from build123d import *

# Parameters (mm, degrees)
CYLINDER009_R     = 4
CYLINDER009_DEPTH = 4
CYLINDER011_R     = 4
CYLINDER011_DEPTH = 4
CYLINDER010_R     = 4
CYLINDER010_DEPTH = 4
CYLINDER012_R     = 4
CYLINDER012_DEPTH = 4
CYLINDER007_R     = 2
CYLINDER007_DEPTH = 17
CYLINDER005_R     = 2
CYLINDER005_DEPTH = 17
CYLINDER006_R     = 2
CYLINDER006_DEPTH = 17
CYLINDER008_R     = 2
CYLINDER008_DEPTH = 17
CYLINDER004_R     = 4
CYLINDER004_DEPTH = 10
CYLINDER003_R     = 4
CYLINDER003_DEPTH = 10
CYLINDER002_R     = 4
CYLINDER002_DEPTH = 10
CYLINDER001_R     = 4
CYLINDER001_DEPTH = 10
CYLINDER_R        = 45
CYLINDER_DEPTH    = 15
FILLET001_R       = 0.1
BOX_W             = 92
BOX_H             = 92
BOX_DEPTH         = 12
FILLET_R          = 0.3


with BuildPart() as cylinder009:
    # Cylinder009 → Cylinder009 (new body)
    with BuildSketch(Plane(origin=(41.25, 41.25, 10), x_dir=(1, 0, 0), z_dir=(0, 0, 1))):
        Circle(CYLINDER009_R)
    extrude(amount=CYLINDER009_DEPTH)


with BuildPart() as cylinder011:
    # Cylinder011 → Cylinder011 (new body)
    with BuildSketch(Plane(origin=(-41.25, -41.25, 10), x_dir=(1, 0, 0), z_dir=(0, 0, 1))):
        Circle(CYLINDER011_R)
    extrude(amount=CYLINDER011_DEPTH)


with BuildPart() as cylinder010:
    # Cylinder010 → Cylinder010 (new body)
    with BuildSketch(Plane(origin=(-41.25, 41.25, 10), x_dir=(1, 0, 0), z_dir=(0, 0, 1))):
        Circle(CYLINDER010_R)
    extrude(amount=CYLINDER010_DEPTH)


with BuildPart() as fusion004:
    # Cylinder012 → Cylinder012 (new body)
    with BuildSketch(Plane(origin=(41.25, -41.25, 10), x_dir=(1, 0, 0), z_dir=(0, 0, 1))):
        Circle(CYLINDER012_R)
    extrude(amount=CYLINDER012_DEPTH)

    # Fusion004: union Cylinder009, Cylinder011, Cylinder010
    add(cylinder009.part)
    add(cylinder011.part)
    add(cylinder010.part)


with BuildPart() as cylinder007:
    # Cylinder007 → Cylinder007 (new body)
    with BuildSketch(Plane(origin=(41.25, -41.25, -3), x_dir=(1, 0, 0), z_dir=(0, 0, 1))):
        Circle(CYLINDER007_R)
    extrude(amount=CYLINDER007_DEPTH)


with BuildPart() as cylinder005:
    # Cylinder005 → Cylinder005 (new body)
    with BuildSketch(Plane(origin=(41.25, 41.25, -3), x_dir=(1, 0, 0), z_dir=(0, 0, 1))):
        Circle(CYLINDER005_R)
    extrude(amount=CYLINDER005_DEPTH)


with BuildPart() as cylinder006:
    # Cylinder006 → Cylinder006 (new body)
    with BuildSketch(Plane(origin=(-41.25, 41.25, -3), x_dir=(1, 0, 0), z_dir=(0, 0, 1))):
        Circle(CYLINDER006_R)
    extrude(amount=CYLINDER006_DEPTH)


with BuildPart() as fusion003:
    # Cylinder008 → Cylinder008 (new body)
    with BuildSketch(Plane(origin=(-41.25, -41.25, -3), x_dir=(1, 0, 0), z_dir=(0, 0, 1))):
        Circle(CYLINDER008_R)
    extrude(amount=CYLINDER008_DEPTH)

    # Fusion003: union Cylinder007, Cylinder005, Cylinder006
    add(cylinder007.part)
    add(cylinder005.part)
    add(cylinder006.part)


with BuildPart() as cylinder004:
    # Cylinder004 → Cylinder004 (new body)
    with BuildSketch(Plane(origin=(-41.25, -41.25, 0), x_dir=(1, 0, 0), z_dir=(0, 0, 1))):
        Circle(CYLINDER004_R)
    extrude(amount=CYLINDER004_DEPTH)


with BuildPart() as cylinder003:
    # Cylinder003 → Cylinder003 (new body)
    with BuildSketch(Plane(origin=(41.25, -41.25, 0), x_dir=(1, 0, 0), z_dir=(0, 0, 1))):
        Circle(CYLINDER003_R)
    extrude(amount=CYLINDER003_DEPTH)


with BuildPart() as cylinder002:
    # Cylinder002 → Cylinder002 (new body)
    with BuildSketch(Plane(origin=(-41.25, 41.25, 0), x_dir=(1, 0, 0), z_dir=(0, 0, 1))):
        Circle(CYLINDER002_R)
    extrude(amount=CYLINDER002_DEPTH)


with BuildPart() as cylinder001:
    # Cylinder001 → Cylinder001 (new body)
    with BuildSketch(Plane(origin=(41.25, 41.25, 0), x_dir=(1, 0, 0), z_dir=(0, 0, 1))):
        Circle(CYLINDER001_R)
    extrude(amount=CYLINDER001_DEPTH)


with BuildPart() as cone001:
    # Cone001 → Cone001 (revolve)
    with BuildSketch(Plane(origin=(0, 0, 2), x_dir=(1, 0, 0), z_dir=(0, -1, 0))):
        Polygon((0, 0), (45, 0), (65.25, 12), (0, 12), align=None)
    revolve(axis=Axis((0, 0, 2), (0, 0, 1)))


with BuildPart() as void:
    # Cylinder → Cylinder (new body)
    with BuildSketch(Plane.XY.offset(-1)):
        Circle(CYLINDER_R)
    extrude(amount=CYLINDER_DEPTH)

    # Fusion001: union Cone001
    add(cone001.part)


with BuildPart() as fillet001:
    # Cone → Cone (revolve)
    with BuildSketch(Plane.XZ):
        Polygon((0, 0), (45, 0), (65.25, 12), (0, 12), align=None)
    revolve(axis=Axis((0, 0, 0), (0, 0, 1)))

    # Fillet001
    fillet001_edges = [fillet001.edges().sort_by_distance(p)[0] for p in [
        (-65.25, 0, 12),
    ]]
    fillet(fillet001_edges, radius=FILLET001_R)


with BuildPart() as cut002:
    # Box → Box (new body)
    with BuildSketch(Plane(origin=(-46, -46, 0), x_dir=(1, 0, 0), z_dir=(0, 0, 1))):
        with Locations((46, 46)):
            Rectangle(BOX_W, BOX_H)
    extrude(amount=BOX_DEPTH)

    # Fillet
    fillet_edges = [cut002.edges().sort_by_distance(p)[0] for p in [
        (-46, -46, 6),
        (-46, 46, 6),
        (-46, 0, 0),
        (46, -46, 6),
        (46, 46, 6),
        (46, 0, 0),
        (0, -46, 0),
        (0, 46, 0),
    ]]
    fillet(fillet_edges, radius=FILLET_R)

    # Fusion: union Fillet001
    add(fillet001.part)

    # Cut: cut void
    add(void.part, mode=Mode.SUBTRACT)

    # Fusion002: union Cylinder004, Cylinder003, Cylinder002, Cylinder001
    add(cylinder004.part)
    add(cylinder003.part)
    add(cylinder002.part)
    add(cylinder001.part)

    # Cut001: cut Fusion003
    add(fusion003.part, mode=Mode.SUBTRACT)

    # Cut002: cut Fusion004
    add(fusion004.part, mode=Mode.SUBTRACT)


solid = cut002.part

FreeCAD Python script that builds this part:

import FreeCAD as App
import Part
import Sketcher
Q = App.Units.Quantity


def edges_at(feature, points):
    """Names of the edges that pass closest to the given points."""
    edges = feature.Shape.Edges
    near = lambda p: min(range(len(edges)), key=lambda i: edges[i].distToShape(Part.Vertex(*p))[0])
    return sorted({f"Edge{near(p) + 1}" for p in points})

doc = App.newDocument("Part")
params = doc.addObject("Spreadsheet::Sheet", "Params")
for row, (alias, value) in enumerate([
    ("sketch1_diameter", "8 mm"),
    ("pad1_length", "4 mm"),
    ("sketch2_diameter", "8 mm"),
    ("pad2_length", "4 mm"),
    ("sketch3_diameter", "8 mm"),
    ("pad3_length", "4 mm"),
    ("sketch4_diameter", "8 mm"),
    ("pad4_length", "4 mm"),
    ("sketch5_diameter", "4 mm"),
    ("pad5_length", "17 mm"),
    ("sketch6_diameter", "4 mm"),
    ("pad6_length", "17 mm"),
    ("sketch7_diameter", "4 mm"),
    ("pad7_length", "17 mm"),
    ("sketch8_diameter", "4 mm"),
    ("pad8_length", "17 mm"),
    ("sketch9_diameter", "8 mm"),
    ("pad9_length", "10 mm"),
    ("sketch10_diameter", "8 mm"),
    ("pad10_length", "10 mm"),
    ("sketch11_diameter", "8 mm"),
    ("pad11_length", "10 mm"),
    ("sketch12_diameter", "8 mm"),
    ("pad12_length", "10 mm"),
    ("sketch13_width", "45 mm"),
    ("sketch13_height", "12 mm"),
    ("sketch13_width2", "65.25 mm"),
    ("revolution_angle", "360 deg"),
    ("sketch14_diameter", "90 mm"),
    ("pad13_length", "15 mm"),
    ("sketch15_width", "45 mm"),
    ("sketch15_height", "12 mm"),
    ("sketch15_width2", "65.25 mm"),
    ("revolution2_angle", "360 deg"),
    ("fillet_radius", "0.1 mm"),
    ("sketch16_width", "92 mm"),
    ("pad14_length", "12 mm"),
    ("fillet2_radius", "0.3 mm"),
], start=1):
    params.set(f"A{row}", alias)
    params.set(f"B{row}", "=" + value)
    params.setAlias(f"B{row}", alias)

body = doc.addObject("PartDesign::Body", "Body")

# Sketch on XY plane
sketch1 = body.newObject("Sketcher::SketchObject", "Sketch")
sketch1.AttachmentSupport = (doc.getObject("XY_Plane"), [""])
sketch1.MapMode = "FlatFace"
sketch1.AttachmentOffset = App.Placement(App.Vector(0, 0, 10), App.Rotation())
sketch1.addGeometry(Part.Circle(App.Vector(41.2, 41.2, 0), App.Vector(0, 0, 1), 4), False)
sketch1.addConstraint([
    Sketcher.Constraint("Diameter", 0, Q("8 mm")),
    Sketcher.Constraint("DistanceX", -1, 1, 0, 3, Q("41.25 mm")),
    Sketcher.Constraint("DistanceY", -1, 1, 0, 3, Q("41.25 mm")),
])
sketch1.setExpression("Constraints[0]", "Params.sketch1_diameter")
pad1 = body.newObject("PartDesign::Pad", "Pad")
pad1.Profile = sketch1
pad1.setExpression("Length", "Params.pad1_length")
body2 = doc.addObject("PartDesign::Body", "Body001")

# Sketch on XY plane
sketch2 = body2.newObject("Sketcher::SketchObject", "Sketch001")
sketch2.AttachmentSupport = (doc.getObject("XY_Plane001"), [""])
sketch2.MapMode = "FlatFace"
sketch2.AttachmentOffset = App.Placement(App.Vector(0, 0, 10), App.Rotation())
sketch2.addGeometry(Part.Circle(App.Vector(-41.2, -41.2, 0), App.Vector(0, 0, 1), 4), False)
sketch2.addConstraint([
    Sketcher.Constraint("Diameter", 0, Q("8 mm")),
    Sketcher.Constraint("DistanceX", 0, 3, -1, 1, Q("41.25 mm")),
    Sketcher.Constraint("DistanceY", 0, 3, -1, 1, Q("41.25 mm")),
])
sketch2.setExpression("Constraints[0]", "Params.sketch2_diameter")
pad2 = body2.newObject("PartDesign::Pad", "Pad001")
pad2.Profile = sketch2
pad2.setExpression("Length", "Params.pad2_length")
body3 = doc.addObject("PartDesign::Body", "Body002")

# Sketch on XY plane
sketch3 = body3.newObject("Sketcher::SketchObject", "Sketch002")
sketch3.AttachmentSupport = (doc.getObject("XY_Plane002"), [""])
sketch3.MapMode = "FlatFace"
sketch3.AttachmentOffset = App.Placement(App.Vector(0, 0, 10), App.Rotation())
sketch3.addGeometry(Part.Circle(App.Vector(-41.2, 41.2, 0), App.Vector(0, 0, 1), 4), False)
sketch3.addConstraint([
    Sketcher.Constraint("Diameter", 0, Q("8 mm")),
    Sketcher.Constraint("DistanceX", 0, 3, -1, 1, Q("41.25 mm")),
    Sketcher.Constraint("DistanceY", -1, 1, 0, 3, Q("41.25 mm")),
])
sketch3.setExpression("Constraints[0]", "Params.sketch3_diameter")
pad3 = body3.newObject("PartDesign::Pad", "Pad002")
pad3.Profile = sketch3
pad3.setExpression("Length", "Params.pad3_length")
body4 = doc.addObject("PartDesign::Body", "Body003")
body4.AllowCompound = True

# Sketch on XY plane
sketch4 = body4.newObject("Sketcher::SketchObject", "Sketch003")
sketch4.AttachmentSupport = (doc.getObject("XY_Plane003"), [""])
sketch4.MapMode = "FlatFace"
sketch4.AttachmentOffset = App.Placement(App.Vector(0, 0, 10), App.Rotation())
sketch4.addGeometry(Part.Circle(App.Vector(41.2, -41.2, 0), App.Vector(0, 0, 1), 4), False)
sketch4.addConstraint([
    Sketcher.Constraint("Diameter", 0, Q("8 mm")),
    Sketcher.Constraint("DistanceX", -1, 1, 0, 3, Q("41.25 mm")),
    Sketcher.Constraint("DistanceY", 0, 3, -1, 1, Q("41.25 mm")),
])
sketch4.setExpression("Constraints[0]", "Params.sketch4_diameter")
pad4 = body4.newObject("PartDesign::Pad", "Pad003")
pad4.Profile = sketch4
pad4.setExpression("Length", "Params.pad4_length")
doc.recompute()

boolean = body4.newObject("PartDesign::Boolean", "Boolean")
boolean.Type = "Fuse"
boolean.addObjects([body])
doc.recompute()

boolean2 = body4.newObject("PartDesign::Boolean", "Boolean001")
boolean2.Type = "Fuse"
boolean2.addObjects([body2])
doc.recompute()

boolean3 = body4.newObject("PartDesign::Boolean", "Boolean002")
boolean3.Type = "Fuse"
boolean3.addObjects([body3])
body5 = doc.addObject("PartDesign::Body", "Body004")

# Sketch on XY plane
sketch5 = body5.newObject("Sketcher::SketchObject", "Sketch004")
sketch5.AttachmentSupport = (doc.getObject("XY_Plane004"), [""])
sketch5.MapMode = "FlatFace"
sketch5.AttachmentOffset = App.Placement(App.Vector(0, 0, -3), App.Rotation())
sketch5.addGeometry(Part.Circle(App.Vector(41.2, -41.2, 0), App.Vector(0, 0, 1), 2), False)
sketch5.addConstraint([
    Sketcher.Constraint("Diameter", 0, Q("4 mm")),
    Sketcher.Constraint("DistanceX", -1, 1, 0, 3, Q("41.25 mm")),
    Sketcher.Constraint("DistanceY", 0, 3, -1, 1, Q("41.25 mm")),
])
sketch5.setExpression("Constraints[0]", "Params.sketch5_diameter")
pad5 = body5.newObject("PartDesign::Pad", "Pad004")
pad5.Profile = sketch5
pad5.setExpression("Length", "Params.pad5_length")
body6 = doc.addObject("PartDesign::Body", "Body005")

# Sketch on XY plane
sketch6 = body6.newObject("Sketcher::SketchObject", "Sketch005")
sketch6.AttachmentSupport = (doc.getObject("XY_Plane005"), [""])
sketch6.MapMode = "FlatFace"
sketch6.AttachmentOffset = App.Placement(App.Vector(0, 0, -3), App.Rotation())
sketch6.addGeometry(Part.Circle(App.Vector(41.2, 41.2, 0), App.Vector(0, 0, 1), 2), False)
sketch6.addConstraint([
    Sketcher.Constraint("Diameter", 0, Q("4 mm")),
    Sketcher.Constraint("DistanceX", -1, 1, 0, 3, Q("41.25 mm")),
    Sketcher.Constraint("DistanceY", -1, 1, 0, 3, Q("41.25 mm")),
])
sketch6.setExpression("Constraints[0]", "Params.sketch6_diameter")
pad6 = body6.newObject("PartDesign::Pad", "Pad005")
pad6.Profile = sketch6
pad6.setExpression("Length", "Params.pad6_length")
body7 = doc.addObject("PartDesign::Body", "Body006")

# Sketch on XY plane
sketch7 = body7.newObject("Sketcher::SketchObject", "Sketch006")
sketch7.AttachmentSupport = (doc.getObject("XY_Plane006"), [""])
sketch7.MapMode = "FlatFace"
sketch7.AttachmentOffset = App.Placement(App.Vector(0, 0, -3), App.Rotation())
sketch7.addGeometry(Part.Circle(App.Vector(-41.2, 41.2, 0), App.Vector(0, 0, 1), 2), False)
sketch7.addConstraint([
    Sketcher.Constraint("Diameter", 0, Q("4 mm")),
    Sketcher.Constraint("DistanceX", 0, 3, -1, 1, Q("41.25 mm")),
    Sketcher.Constraint("DistanceY", -1, 1, 0, 3, Q("41.25 mm")),
])
sketch7.setExpression("Constraints[0]", "Params.sketch7_diameter")
pad7 = body7.newObject("PartDesign::Pad", "Pad006")
pad7.Profile = sketch7
pad7.setExpression("Length", "Params.pad7_length")
body8 = doc.addObject("PartDesign::Body", "Body007")
body8.AllowCompound = True

# Sketch on XY plane
sketch8 = body8.newObject("Sketcher::SketchObject", "Sketch007")
sketch8.AttachmentSupport = (doc.getObject("XY_Plane007"), [""])
sketch8.MapMode = "FlatFace"
sketch8.AttachmentOffset = App.Placement(App.Vector(0, 0, -3), App.Rotation())
sketch8.addGeometry(Part.Circle(App.Vector(-41.2, -41.2, 0), App.Vector(0, 0, 1), 2), False)
sketch8.addConstraint([
    Sketcher.Constraint("Diameter", 0, Q("4 mm")),
    Sketcher.Constraint("DistanceX", 0, 3, -1, 1, Q("41.25 mm")),
    Sketcher.Constraint("DistanceY", 0, 3, -1, 1, Q("41.25 mm")),
])
sketch8.setExpression("Constraints[0]", "Params.sketch8_diameter")
pad8 = body8.newObject("PartDesign::Pad", "Pad007")
pad8.Profile = sketch8
pad8.setExpression("Length", "Params.pad8_length")
doc.recompute()

boolean4 = body8.newObject("PartDesign::Boolean", "Boolean003")
boolean4.Type = "Fuse"
boolean4.addObjects([body5])
doc.recompute()

boolean5 = body8.newObject("PartDesign::Boolean", "Boolean004")
boolean5.Type = "Fuse"
boolean5.addObjects([body6])
doc.recompute()

boolean6 = body8.newObject("PartDesign::Boolean", "Boolean005")
boolean6.Type = "Fuse"
boolean6.addObjects([body7])
body9 = doc.addObject("PartDesign::Body", "Body008")

# Sketch on XY plane
sketch9 = body9.newObject("Sketcher::SketchObject", "Sketch008")
sketch9.AttachmentSupport = (doc.getObject("XY_Plane008"), [""])
sketch9.MapMode = "FlatFace"
sketch9.addGeometry(Part.Circle(App.Vector(-41.2, -41.2, 0), App.Vector(0, 0, 1), 4), False)
sketch9.addConstraint([
    Sketcher.Constraint("Diameter", 0, Q("8 mm")),
    Sketcher.Constraint("DistanceX", 0, 3, -1, 1, Q("41.25 mm")),
    Sketcher.Constraint("DistanceY", 0, 3, -1, 1, Q("41.25 mm")),
])
sketch9.setExpression("Constraints[0]", "Params.sketch9_diameter")
pad9 = body9.newObject("PartDesign::Pad", "Pad008")
pad9.Profile = sketch9
pad9.setExpression("Length", "Params.pad9_length")
body10 = doc.addObject("PartDesign::Body", "Body009")

# Sketch on XY plane
sketch10 = body10.newObject("Sketcher::SketchObject", "Sketch009")
sketch10.AttachmentSupport = (doc.getObject("XY_Plane009"), [""])
sketch10.MapMode = "FlatFace"
sketch10.addGeometry(Part.Circle(App.Vector(41.2, -41.2, 0), App.Vector(0, 0, 1), 4), False)
sketch10.addConstraint([
    Sketcher.Constraint("Diameter", 0, Q("8 mm")),
    Sketcher.Constraint("DistanceX", -1, 1, 0, 3, Q("41.25 mm")),
    Sketcher.Constraint("DistanceY", 0, 3, -1, 1, Q("41.25 mm")),
])
sketch10.setExpression("Constraints[0]", "Params.sketch10_diameter")
pad10 = body10.newObject("PartDesign::Pad", "Pad009")
pad10.Profile = sketch10
pad10.setExpression("Length", "Params.pad10_length")
body11 = doc.addObject("PartDesign::Body", "Body010")

# Sketch on XY plane
sketch11 = body11.newObject("Sketcher::SketchObject", "Sketch010")
sketch11.AttachmentSupport = (doc.getObject("XY_Plane010"), [""])
sketch11.MapMode = "FlatFace"
sketch11.addGeometry(Part.Circle(App.Vector(-41.2, 41.2, 0), App.Vector(0, 0, 1), 4), False)
sketch11.addConstraint([
    Sketcher.Constraint("Diameter", 0, Q("8 mm")),
    Sketcher.Constraint("DistanceX", 0, 3, -1, 1, Q("41.25 mm")),
    Sketcher.Constraint("DistanceY", -1, 1, 0, 3, Q("41.25 mm")),
])
sketch11.setExpression("Constraints[0]", "Params.sketch11_diameter")
pad11 = body11.newObject("PartDesign::Pad", "Pad010")
pad11.Profile = sketch11
pad11.setExpression("Length", "Params.pad11_length")
body12 = doc.addObject("PartDesign::Body", "Body011")

# Sketch on XY plane
sketch12 = body12.newObject("Sketcher::SketchObject", "Sketch011")
sketch12.AttachmentSupport = (doc.getObject("XY_Plane011"), [""])
sketch12.MapMode = "FlatFace"
sketch12.addGeometry(Part.Circle(App.Vector(41.2, 41.2, 0), App.Vector(0, 0, 1), 4), False)
sketch12.addConstraint([
    Sketcher.Constraint("Diameter", 0, Q("8 mm")),
    Sketcher.Constraint("DistanceX", -1, 1, 0, 3, Q("41.25 mm")),
    Sketcher.Constraint("DistanceY", -1, 1, 0, 3, Q("41.25 mm")),
])
sketch12.setExpression("Constraints[0]", "Params.sketch12_diameter")
pad12 = body12.newObject("PartDesign::Pad", "Pad011")
pad12.Profile = sketch12
pad12.setExpression("Length", "Params.pad12_length")
body13 = doc.addObject("PartDesign::Body", "Body012")

# Sketch on XZ plane
sketch13 = body13.newObject("Sketcher::SketchObject", "Sketch012")
sketch13.AttachmentSupport = (doc.getObject("XZ_Plane012"), [""])
sketch13.MapMode = "FlatFace"
sketch13.addGeometry([
    Part.LineSegment(App.Vector(0, 2, 0), App.Vector(45, 2, 0)),
    Part.LineSegment(App.Vector(45, 2, 0), App.Vector(65, 14, 0)),
    Part.LineSegment(App.Vector(65, 14, 0), App.Vector(0, 14, 0)),
    Part.LineSegment(App.Vector(0, 14, 0), App.Vector(0, 2, 0)),
], False)
sketch13.addConstraint([
    Sketcher.Constraint("Coincident", 0, 2, 1, 1),
    Sketcher.Constraint("Coincident", 1, 2, 2, 1),
    Sketcher.Constraint("Coincident", 2, 2, 3, 1),
    Sketcher.Constraint("Coincident", 3, 2, 0, 1),
    Sketcher.Constraint("Horizontal", 0),
    Sketcher.Constraint("Horizontal", 2),
    Sketcher.Constraint("Vertical", 3),
    Sketcher.Constraint("PointOnObject", 2, 2, -2),
    Sketcher.Constraint("DistanceX", 0, 1, 0, 2, Q("45 mm")),
    Sketcher.Constraint("DistanceY", 3, 2, 3, 1, Q("12 mm")),
    Sketcher.Constraint("DistanceY", -1, 1, 0, 2, Q("2 mm")),
    Sketcher.Constraint("DistanceX", 2, 2, 2, 1, Q("65.25 mm")),
])
sketch13.setExpression("Constraints[8]", "Params.sketch13_width")
sketch13.setExpression("Constraints[9]", "Params.sketch13_height")
sketch13.setExpression("Constraints[11]", "Params.sketch13_width2")
revolution = body13.newObject("PartDesign::Revolution", "Revolution")
revolution.Profile = sketch13
revolution.ReferenceAxis = (sketch13, ["V_Axis"])
revolution.setExpression("Angle", "Params.revolution_angle")
body14 = doc.addObject("PartDesign::Body", "Body013")

# Sketch on XY plane
sketch14 = body14.newObject("Sketcher::SketchObject", "Sketch013")
sketch14.AttachmentSupport = (doc.getObject("XY_Plane013"), [""])
sketch14.MapMode = "FlatFace"
sketch14.AttachmentOffset = App.Placement(App.Vector(0, 0, -1), App.Rotation())
sketch14.addGeometry(Part.Circle(App.Vector(0, 0, 0), App.Vector(0, 0, 1), 45), False)
sketch14.addConstraint([
    Sketcher.Constraint("Coincident", 0, 3, -1, 1),
    Sketcher.Constraint("Diameter", 0, Q("90 mm")),
])
sketch14.setExpression("Constraints[1]", "Params.sketch14_diameter")
pad13 = body14.newObject("PartDesign::Pad", "Pad012")
pad13.Profile = sketch14
pad13.setExpression("Length", "Params.pad13_length")
doc.recompute()

boolean7 = body14.newObject("PartDesign::Boolean", "Boolean006")
boolean7.Type = "Fuse"
boolean7.addObjects([body13])
body15 = doc.addObject("PartDesign::Body", "Body014")

# Sketch on XZ plane
sketch15 = body15.newObject("Sketcher::SketchObject", "Sketch014")
sketch15.AttachmentSupport = (doc.getObject("XZ_Plane014"), [""])
sketch15.MapMode = "FlatFace"
sketch15.addGeometry([
    Part.LineSegment(App.Vector(0, 0, 0), App.Vector(45, 0, 0)),
    Part.LineSegment(App.Vector(45, 0, 0), App.Vector(65, 12, 0)),
    Part.LineSegment(App.Vector(65, 12, 0), App.Vector(0, 12, 0)),
    Part.LineSegment(App.Vector(0, 12, 0), App.Vector(0, 0, 0)),
], False)
sketch15.addConstraint([
    Sketcher.Constraint("Coincident", 0, 2, 1, 1),
    Sketcher.Constraint("Coincident", 1, 2, 2, 1),
    Sketcher.Constraint("Coincident", 2, 2, 3, 1),
    Sketcher.Constraint("Coincident", 3, 2, 0, 1),
    Sketcher.Constraint("Horizontal", 0),
    Sketcher.Constraint("Horizontal", 2),
    Sketcher.Constraint("Vertical", 3),
    Sketcher.Constraint("Coincident", 3, 2, -1, 1),
    Sketcher.Constraint("DistanceX", 0, 1, 0, 2, Q("45 mm")),
    Sketcher.Constraint("DistanceY", 3, 2, 3, 1, Q("12 mm")),
    Sketcher.Constraint("DistanceX", 2, 2, 2, 1, Q("65.25 mm")),
])
sketch15.setExpression("Constraints[8]", "Params.sketch15_width")
sketch15.setExpression("Constraints[9]", "Params.sketch15_height")
sketch15.setExpression("Constraints[10]", "Params.sketch15_width2")
revolution2 = body15.newObject("PartDesign::Revolution", "Revolution001")
revolution2.Profile = sketch15
revolution2.ReferenceAxis = (sketch15, ["V_Axis"])
revolution2.setExpression("Angle", "Params.revolution2_angle")
doc.recompute()

fillet = body15.newObject("PartDesign::Fillet", "Fillet")
fillet.Base = (revolution2, edges_at(revolution2, [(-65.25, 0, 12)]))
fillet.setExpression("Radius", "Params.fillet_radius")
body16 = doc.addObject("PartDesign::Body", "Body015")

# Sketch on XY plane
sketch16 = body16.newObject("Sketcher::SketchObject", "Sketch015")
sketch16.AttachmentSupport = (doc.getObject("XY_Plane015"), [""])
sketch16.MapMode = "FlatFace"
sketch16.addGeometry([
    Part.LineSegment(App.Vector(-46, 46, 0), App.Vector(-46, -46, 0)),
    Part.LineSegment(App.Vector(-46, -46, 0), App.Vector(46, -46, 0)),
    Part.LineSegment(App.Vector(46, -46, 0), App.Vector(46, 46, 0)),
    Part.LineSegment(App.Vector(46, 46, 0), App.Vector(-46, 46, 0)),
], False)
sketch16.addConstraint([
    Sketcher.Constraint("Coincident", 0, 2, 1, 1),
    Sketcher.Constraint("Coincident", 1, 2, 2, 1),
    Sketcher.Constraint("Coincident", 2, 2, 3, 1),
    Sketcher.Constraint("Coincident", 3, 2, 0, 1),
    Sketcher.Constraint("Vertical", 0),
    Sketcher.Constraint("Horizontal", 1),
    Sketcher.Constraint("Vertical", 2),
    Sketcher.Constraint("Horizontal", 3),
    Sketcher.Constraint("Symmetric", 0, 2, 2, 2, -1, 1),
    Sketcher.Constraint("Equal", 3, 0),
    Sketcher.Constraint("DistanceX", 1, 1, 1, 2, Q("92 mm")),
])
sketch16.setExpression("Constraints[10]", "Params.sketch16_width")
pad14 = body16.newObject("PartDesign::Pad", "Pad013")
pad14.Profile = sketch16
pad14.setExpression("Length", "Params.pad14_length")
doc.recompute()

fillet2 = body16.newObject("PartDesign::Fillet", "Fillet001")
fillet2.Base = (pad14, edges_at(pad14, [
    (-46, -46, 6),
    (-46, 46, 6),
    (-46, 0, 0),
    (46, -46, 6),
    (46, 46, 6),
    (46, 0, 0),
    (0, -46, 0),
    (0, 46, 0),
]))
fillet2.setExpression("Radius", "Params.fillet2_radius")
doc.recompute()

boolean8 = body16.newObject("PartDesign::Boolean", "Boolean007")
boolean8.Type = "Fuse"
boolean8.addObjects([body15])
doc.recompute()

boolean9 = body16.newObject("PartDesign::Boolean", "Boolean008")
boolean9.Type = "Cut"
boolean9.addObjects([body14])
doc.recompute()

boolean10 = body16.newObject("PartDesign::Boolean", "Boolean009")
boolean10.Type = "Fuse"
boolean10.addObjects([body9])
doc.recompute()

boolean11 = body16.newObject("PartDesign::Boolean", "Boolean010")
boolean11.Type = "Fuse"
boolean11.addObjects([body10])
doc.recompute()

boolean12 = body16.newObject("PartDesign::Boolean", "Boolean011")
boolean12.Type = "Fuse"
boolean12.addObjects([body11])
doc.recompute()

boolean13 = body16.newObject("PartDesign::Boolean", "Boolean012")
boolean13.Type = "Fuse"
boolean13.addObjects([body12])
doc.recompute()

boolean14 = body16.newObject("PartDesign::Boolean", "Boolean013")
boolean14.Type = "Cut"
boolean14.addObjects([body8])
doc.recompute()

boolean15 = body16.newObject("PartDesign::Boolean", "Boolean014")
boolean15.Type = "Cut"
boolean15.addObjects([body4])

doc.recompute()
